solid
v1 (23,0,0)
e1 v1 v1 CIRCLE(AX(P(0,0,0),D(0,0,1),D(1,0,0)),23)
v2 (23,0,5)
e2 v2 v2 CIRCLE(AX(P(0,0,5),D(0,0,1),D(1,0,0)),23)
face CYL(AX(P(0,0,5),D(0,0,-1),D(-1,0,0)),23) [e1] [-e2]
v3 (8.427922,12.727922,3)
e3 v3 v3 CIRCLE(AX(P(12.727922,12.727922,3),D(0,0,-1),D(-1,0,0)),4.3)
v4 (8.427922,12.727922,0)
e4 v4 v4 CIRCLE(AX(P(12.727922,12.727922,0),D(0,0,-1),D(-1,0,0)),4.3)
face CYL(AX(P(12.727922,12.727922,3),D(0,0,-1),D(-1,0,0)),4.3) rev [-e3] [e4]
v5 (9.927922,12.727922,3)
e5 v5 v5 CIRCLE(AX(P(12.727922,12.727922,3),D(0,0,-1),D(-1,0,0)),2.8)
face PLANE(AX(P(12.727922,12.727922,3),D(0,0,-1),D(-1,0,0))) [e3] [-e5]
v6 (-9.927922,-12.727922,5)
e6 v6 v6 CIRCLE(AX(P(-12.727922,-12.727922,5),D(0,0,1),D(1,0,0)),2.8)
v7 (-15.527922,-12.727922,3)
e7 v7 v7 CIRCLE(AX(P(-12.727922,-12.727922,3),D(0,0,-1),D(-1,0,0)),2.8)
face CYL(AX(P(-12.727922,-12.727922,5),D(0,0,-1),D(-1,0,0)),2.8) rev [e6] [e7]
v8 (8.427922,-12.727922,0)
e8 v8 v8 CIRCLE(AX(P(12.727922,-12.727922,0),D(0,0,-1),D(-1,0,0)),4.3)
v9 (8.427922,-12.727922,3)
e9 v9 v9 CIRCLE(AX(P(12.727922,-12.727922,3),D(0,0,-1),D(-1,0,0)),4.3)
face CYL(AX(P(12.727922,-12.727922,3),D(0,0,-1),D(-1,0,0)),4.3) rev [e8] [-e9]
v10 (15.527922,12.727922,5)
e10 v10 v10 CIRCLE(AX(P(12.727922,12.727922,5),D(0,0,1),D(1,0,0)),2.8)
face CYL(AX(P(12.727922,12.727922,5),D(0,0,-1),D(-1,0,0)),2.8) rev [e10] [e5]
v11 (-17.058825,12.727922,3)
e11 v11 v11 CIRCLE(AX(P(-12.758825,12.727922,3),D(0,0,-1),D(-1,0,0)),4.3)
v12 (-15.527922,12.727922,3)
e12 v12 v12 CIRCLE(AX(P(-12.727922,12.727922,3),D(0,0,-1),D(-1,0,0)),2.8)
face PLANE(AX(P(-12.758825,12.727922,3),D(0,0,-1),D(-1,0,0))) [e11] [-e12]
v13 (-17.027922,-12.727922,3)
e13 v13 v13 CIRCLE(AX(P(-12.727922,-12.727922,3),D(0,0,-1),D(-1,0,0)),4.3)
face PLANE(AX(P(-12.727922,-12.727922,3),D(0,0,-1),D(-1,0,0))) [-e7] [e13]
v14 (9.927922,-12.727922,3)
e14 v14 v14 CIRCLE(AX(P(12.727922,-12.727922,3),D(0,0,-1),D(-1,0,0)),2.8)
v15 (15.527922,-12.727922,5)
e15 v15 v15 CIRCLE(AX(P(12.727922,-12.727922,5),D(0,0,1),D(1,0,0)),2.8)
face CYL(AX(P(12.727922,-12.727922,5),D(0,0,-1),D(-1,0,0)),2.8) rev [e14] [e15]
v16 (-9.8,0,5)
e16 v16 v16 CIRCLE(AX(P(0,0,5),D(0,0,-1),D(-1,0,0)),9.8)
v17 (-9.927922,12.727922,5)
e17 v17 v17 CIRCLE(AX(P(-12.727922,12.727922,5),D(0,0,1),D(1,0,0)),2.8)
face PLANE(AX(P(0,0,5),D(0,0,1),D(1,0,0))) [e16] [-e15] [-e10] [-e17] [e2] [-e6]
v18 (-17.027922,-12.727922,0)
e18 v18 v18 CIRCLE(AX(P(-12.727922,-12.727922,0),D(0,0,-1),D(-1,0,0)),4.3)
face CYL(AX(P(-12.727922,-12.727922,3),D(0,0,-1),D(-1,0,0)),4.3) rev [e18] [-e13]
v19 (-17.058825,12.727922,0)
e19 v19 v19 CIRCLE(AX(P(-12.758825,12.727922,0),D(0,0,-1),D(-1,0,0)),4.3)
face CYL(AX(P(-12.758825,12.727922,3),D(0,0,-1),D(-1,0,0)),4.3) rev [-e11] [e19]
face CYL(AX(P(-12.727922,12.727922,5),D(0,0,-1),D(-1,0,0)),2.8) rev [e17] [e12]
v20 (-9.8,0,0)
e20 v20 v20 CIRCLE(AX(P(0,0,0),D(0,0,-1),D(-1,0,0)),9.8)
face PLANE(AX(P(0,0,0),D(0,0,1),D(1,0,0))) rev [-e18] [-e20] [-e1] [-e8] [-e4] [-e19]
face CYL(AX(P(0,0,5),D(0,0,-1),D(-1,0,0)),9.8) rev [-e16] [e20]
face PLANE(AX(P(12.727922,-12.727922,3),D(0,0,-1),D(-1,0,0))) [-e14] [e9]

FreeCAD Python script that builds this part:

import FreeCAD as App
import Part
import Sketcher

doc = App.newDocument("Part")
params = doc.addObject("Spreadsheet::Sheet", "Params")
for row, (alias, value) in enumerate([
    ("sketch1_diameter", "46 mm"),
    ("sketch1_diameter2", "5.6 mm"),
    ("pad1_length", "5 mm"),
    ("sketch2_diameter", "8.6 mm"),
    ("pocket1_length", "3 mm"),
    ("sketch3_diameter", "19.6 mm"),
], start=1):
    params.set(f"A{row}", alias)
    params.set(f"B{row}", "=" + value)
    params.setAlias(f"B{row}", alias)

body = doc.addObject("PartDesign::Body", "Body")

# Sketch on XY plane
sketch1 = doc.addObject("Sketcher::SketchObject", "Sketch")
body.addObject(sketch1)
sketch1.AttachmentSupport = (doc.XY_Plane, [""])
sketch1.MapMode = "FlatFace"
sketch1.addGeometry([
    Part.Circle(App.Vector(0, 0, 0), App.Vector(0, 0, 1), 23),  # 0
    Part.Circle(App.Vector(-12.727922, -12.727922, 0), App.Vector(0, 0, 1), 2.8),  # 1
    Part.Circle(App.Vector(12.727922, -12.727922, 0), App.Vector(0, 0, 1), 2.8),  # 2
    Part.Circle(App.Vector(-12.727922, 12.727922, 0), App.Vector(0, 0, 1), 2.8),  # 3
    Part.Circle(App.Vector(12.727922, 12.727922, 0), App.Vector(0, 0, 1), 2.8),  # 4
], False)
sketch1.addConstraint([
    Sketcher.Constraint("Coincident", 0, 3, -1, 1),
    Sketcher.Constraint("Equal", 1, 2),
    Sketcher.Constraint("Equal", 2, 3),
    Sketcher.Constraint("Equal", 3, 4),
    Sketcher.Constraint("Symmetric", 2, 3, 3, 3, -1, 1),
    Sketcher.Constraint("Symmetric", 1, 3, 4, 3, -1, 1),
    Sketcher.Constraint("Symmetric", 1, 3, 2, 3, -2),
    Sketcher.Constraint("Diameter", 0, 46.0),
    Sketcher.Constraint("Diameter", 1, 5.6),
    Sketcher.Constraint("DistanceX", 1, 3, -1, 1, 12.727922),
    Sketcher.Constraint("DistanceY", 1, 3, -1, 1, 12.727922),
])
sketch1.setExpression("Constraints[7]", "Params.sketch1_diameter")
sketch1.setExpression("Constraints[8]", "Params.sketch1_diameter2")
pad1 = doc.addObject("PartDesign::Pad", "Pad")
body.addObject(pad1)
pad1.Profile = sketch1
pad1.setExpression("Length", "Params.pad1_length")

# Sketch on XY plane
sketch2 = doc.addObject("Sketcher::SketchObject", "Sketch001")
body.addObject(sketch2)
sketch2.AttachmentSupport = (doc.XY_Plane, [""])
sketch2.MapMode = "FlatFace"
sketch2.addGeometry([
    Part.Circle(App.Vector(12.727922, 12.727922, 0), App.Vector(0, 0, 1), 4.3),
    Part.Circle(App.Vector(-12.758825, 12.727922, 0), App.Vector(0, 0, 1), 4.3),
    Part.Circle(App.Vector(-12.727922, -12.727922, 0), App.Vector(0, 0, 1), 4.3),
    Part.Circle(App.Vector(12.727922, -12.727922, 0), App.Vector(0, 0, 1), 4.3),
], False)
sketch2.addConstraint([
    Sketcher.Constraint("Equal", 0, 1),
    Sketcher.Constraint("Equal", 1, 2),
    Sketcher.Constraint("Equal", 2, 3),
    Sketcher.Constraint("Symmetric", 0, 3, 2, 3, -1, 1),
    Sketcher.Constraint("Symmetric", 2, 3, 3, 3, -2),
    Sketcher.Constraint("Horizontal", 0, 3, 1, 3),
    Sketcher.Constraint("Diameter", 0, 8.6),
    Sketcher.Constraint("DistanceX", -1, 1, 0, 3, 12.727922),
    Sketcher.Constraint("DistanceY", -1, 1, 0, 3, 12.727922),
    Sketcher.Constraint("DistanceX", 1, 3, -1, 1, 12.758825),
])
sketch2.setExpression("Constraints[6]", "Params.sketch2_diameter")
pocket1 = doc.addObject("PartDesign::Pocket", "Pocket")
body.addObject(pocket1)
pocket1.Profile = sketch2
pocket1.setExpression("Length", "Params.pocket1_length")
pocket1.Reversed = True

# Sketch on XY plane
sketch3 = doc.addObject("Sketcher::SketchObject", "Sketch002")
body.addObject(sketch3)
sketch3.AttachmentSupport = (doc.XY_Plane, [""])
sketch3.MapMode = "FlatFace"
sketch3.addGeometry(Part.Circle(App.Vector(0, 0, 0), App.Vector(0, 0, 1), 9.8), False)
sketch3.addConstraint([
    Sketcher.Constraint("Coincident", 0, 3, -1, 1),
    Sketcher.Constraint("Diameter", 0, 19.6),
])
sketch3.setExpression("Constraints[1]", "Params.sketch3_diameter")
pocket2 = doc.addObject("PartDesign::Pocket", "Pocket001")
body.addObject(pocket2)
pocket2.Profile = sketch3
pocket2.Type = "ThroughAll"
pocket2.Reversed = True

doc.recompute()
